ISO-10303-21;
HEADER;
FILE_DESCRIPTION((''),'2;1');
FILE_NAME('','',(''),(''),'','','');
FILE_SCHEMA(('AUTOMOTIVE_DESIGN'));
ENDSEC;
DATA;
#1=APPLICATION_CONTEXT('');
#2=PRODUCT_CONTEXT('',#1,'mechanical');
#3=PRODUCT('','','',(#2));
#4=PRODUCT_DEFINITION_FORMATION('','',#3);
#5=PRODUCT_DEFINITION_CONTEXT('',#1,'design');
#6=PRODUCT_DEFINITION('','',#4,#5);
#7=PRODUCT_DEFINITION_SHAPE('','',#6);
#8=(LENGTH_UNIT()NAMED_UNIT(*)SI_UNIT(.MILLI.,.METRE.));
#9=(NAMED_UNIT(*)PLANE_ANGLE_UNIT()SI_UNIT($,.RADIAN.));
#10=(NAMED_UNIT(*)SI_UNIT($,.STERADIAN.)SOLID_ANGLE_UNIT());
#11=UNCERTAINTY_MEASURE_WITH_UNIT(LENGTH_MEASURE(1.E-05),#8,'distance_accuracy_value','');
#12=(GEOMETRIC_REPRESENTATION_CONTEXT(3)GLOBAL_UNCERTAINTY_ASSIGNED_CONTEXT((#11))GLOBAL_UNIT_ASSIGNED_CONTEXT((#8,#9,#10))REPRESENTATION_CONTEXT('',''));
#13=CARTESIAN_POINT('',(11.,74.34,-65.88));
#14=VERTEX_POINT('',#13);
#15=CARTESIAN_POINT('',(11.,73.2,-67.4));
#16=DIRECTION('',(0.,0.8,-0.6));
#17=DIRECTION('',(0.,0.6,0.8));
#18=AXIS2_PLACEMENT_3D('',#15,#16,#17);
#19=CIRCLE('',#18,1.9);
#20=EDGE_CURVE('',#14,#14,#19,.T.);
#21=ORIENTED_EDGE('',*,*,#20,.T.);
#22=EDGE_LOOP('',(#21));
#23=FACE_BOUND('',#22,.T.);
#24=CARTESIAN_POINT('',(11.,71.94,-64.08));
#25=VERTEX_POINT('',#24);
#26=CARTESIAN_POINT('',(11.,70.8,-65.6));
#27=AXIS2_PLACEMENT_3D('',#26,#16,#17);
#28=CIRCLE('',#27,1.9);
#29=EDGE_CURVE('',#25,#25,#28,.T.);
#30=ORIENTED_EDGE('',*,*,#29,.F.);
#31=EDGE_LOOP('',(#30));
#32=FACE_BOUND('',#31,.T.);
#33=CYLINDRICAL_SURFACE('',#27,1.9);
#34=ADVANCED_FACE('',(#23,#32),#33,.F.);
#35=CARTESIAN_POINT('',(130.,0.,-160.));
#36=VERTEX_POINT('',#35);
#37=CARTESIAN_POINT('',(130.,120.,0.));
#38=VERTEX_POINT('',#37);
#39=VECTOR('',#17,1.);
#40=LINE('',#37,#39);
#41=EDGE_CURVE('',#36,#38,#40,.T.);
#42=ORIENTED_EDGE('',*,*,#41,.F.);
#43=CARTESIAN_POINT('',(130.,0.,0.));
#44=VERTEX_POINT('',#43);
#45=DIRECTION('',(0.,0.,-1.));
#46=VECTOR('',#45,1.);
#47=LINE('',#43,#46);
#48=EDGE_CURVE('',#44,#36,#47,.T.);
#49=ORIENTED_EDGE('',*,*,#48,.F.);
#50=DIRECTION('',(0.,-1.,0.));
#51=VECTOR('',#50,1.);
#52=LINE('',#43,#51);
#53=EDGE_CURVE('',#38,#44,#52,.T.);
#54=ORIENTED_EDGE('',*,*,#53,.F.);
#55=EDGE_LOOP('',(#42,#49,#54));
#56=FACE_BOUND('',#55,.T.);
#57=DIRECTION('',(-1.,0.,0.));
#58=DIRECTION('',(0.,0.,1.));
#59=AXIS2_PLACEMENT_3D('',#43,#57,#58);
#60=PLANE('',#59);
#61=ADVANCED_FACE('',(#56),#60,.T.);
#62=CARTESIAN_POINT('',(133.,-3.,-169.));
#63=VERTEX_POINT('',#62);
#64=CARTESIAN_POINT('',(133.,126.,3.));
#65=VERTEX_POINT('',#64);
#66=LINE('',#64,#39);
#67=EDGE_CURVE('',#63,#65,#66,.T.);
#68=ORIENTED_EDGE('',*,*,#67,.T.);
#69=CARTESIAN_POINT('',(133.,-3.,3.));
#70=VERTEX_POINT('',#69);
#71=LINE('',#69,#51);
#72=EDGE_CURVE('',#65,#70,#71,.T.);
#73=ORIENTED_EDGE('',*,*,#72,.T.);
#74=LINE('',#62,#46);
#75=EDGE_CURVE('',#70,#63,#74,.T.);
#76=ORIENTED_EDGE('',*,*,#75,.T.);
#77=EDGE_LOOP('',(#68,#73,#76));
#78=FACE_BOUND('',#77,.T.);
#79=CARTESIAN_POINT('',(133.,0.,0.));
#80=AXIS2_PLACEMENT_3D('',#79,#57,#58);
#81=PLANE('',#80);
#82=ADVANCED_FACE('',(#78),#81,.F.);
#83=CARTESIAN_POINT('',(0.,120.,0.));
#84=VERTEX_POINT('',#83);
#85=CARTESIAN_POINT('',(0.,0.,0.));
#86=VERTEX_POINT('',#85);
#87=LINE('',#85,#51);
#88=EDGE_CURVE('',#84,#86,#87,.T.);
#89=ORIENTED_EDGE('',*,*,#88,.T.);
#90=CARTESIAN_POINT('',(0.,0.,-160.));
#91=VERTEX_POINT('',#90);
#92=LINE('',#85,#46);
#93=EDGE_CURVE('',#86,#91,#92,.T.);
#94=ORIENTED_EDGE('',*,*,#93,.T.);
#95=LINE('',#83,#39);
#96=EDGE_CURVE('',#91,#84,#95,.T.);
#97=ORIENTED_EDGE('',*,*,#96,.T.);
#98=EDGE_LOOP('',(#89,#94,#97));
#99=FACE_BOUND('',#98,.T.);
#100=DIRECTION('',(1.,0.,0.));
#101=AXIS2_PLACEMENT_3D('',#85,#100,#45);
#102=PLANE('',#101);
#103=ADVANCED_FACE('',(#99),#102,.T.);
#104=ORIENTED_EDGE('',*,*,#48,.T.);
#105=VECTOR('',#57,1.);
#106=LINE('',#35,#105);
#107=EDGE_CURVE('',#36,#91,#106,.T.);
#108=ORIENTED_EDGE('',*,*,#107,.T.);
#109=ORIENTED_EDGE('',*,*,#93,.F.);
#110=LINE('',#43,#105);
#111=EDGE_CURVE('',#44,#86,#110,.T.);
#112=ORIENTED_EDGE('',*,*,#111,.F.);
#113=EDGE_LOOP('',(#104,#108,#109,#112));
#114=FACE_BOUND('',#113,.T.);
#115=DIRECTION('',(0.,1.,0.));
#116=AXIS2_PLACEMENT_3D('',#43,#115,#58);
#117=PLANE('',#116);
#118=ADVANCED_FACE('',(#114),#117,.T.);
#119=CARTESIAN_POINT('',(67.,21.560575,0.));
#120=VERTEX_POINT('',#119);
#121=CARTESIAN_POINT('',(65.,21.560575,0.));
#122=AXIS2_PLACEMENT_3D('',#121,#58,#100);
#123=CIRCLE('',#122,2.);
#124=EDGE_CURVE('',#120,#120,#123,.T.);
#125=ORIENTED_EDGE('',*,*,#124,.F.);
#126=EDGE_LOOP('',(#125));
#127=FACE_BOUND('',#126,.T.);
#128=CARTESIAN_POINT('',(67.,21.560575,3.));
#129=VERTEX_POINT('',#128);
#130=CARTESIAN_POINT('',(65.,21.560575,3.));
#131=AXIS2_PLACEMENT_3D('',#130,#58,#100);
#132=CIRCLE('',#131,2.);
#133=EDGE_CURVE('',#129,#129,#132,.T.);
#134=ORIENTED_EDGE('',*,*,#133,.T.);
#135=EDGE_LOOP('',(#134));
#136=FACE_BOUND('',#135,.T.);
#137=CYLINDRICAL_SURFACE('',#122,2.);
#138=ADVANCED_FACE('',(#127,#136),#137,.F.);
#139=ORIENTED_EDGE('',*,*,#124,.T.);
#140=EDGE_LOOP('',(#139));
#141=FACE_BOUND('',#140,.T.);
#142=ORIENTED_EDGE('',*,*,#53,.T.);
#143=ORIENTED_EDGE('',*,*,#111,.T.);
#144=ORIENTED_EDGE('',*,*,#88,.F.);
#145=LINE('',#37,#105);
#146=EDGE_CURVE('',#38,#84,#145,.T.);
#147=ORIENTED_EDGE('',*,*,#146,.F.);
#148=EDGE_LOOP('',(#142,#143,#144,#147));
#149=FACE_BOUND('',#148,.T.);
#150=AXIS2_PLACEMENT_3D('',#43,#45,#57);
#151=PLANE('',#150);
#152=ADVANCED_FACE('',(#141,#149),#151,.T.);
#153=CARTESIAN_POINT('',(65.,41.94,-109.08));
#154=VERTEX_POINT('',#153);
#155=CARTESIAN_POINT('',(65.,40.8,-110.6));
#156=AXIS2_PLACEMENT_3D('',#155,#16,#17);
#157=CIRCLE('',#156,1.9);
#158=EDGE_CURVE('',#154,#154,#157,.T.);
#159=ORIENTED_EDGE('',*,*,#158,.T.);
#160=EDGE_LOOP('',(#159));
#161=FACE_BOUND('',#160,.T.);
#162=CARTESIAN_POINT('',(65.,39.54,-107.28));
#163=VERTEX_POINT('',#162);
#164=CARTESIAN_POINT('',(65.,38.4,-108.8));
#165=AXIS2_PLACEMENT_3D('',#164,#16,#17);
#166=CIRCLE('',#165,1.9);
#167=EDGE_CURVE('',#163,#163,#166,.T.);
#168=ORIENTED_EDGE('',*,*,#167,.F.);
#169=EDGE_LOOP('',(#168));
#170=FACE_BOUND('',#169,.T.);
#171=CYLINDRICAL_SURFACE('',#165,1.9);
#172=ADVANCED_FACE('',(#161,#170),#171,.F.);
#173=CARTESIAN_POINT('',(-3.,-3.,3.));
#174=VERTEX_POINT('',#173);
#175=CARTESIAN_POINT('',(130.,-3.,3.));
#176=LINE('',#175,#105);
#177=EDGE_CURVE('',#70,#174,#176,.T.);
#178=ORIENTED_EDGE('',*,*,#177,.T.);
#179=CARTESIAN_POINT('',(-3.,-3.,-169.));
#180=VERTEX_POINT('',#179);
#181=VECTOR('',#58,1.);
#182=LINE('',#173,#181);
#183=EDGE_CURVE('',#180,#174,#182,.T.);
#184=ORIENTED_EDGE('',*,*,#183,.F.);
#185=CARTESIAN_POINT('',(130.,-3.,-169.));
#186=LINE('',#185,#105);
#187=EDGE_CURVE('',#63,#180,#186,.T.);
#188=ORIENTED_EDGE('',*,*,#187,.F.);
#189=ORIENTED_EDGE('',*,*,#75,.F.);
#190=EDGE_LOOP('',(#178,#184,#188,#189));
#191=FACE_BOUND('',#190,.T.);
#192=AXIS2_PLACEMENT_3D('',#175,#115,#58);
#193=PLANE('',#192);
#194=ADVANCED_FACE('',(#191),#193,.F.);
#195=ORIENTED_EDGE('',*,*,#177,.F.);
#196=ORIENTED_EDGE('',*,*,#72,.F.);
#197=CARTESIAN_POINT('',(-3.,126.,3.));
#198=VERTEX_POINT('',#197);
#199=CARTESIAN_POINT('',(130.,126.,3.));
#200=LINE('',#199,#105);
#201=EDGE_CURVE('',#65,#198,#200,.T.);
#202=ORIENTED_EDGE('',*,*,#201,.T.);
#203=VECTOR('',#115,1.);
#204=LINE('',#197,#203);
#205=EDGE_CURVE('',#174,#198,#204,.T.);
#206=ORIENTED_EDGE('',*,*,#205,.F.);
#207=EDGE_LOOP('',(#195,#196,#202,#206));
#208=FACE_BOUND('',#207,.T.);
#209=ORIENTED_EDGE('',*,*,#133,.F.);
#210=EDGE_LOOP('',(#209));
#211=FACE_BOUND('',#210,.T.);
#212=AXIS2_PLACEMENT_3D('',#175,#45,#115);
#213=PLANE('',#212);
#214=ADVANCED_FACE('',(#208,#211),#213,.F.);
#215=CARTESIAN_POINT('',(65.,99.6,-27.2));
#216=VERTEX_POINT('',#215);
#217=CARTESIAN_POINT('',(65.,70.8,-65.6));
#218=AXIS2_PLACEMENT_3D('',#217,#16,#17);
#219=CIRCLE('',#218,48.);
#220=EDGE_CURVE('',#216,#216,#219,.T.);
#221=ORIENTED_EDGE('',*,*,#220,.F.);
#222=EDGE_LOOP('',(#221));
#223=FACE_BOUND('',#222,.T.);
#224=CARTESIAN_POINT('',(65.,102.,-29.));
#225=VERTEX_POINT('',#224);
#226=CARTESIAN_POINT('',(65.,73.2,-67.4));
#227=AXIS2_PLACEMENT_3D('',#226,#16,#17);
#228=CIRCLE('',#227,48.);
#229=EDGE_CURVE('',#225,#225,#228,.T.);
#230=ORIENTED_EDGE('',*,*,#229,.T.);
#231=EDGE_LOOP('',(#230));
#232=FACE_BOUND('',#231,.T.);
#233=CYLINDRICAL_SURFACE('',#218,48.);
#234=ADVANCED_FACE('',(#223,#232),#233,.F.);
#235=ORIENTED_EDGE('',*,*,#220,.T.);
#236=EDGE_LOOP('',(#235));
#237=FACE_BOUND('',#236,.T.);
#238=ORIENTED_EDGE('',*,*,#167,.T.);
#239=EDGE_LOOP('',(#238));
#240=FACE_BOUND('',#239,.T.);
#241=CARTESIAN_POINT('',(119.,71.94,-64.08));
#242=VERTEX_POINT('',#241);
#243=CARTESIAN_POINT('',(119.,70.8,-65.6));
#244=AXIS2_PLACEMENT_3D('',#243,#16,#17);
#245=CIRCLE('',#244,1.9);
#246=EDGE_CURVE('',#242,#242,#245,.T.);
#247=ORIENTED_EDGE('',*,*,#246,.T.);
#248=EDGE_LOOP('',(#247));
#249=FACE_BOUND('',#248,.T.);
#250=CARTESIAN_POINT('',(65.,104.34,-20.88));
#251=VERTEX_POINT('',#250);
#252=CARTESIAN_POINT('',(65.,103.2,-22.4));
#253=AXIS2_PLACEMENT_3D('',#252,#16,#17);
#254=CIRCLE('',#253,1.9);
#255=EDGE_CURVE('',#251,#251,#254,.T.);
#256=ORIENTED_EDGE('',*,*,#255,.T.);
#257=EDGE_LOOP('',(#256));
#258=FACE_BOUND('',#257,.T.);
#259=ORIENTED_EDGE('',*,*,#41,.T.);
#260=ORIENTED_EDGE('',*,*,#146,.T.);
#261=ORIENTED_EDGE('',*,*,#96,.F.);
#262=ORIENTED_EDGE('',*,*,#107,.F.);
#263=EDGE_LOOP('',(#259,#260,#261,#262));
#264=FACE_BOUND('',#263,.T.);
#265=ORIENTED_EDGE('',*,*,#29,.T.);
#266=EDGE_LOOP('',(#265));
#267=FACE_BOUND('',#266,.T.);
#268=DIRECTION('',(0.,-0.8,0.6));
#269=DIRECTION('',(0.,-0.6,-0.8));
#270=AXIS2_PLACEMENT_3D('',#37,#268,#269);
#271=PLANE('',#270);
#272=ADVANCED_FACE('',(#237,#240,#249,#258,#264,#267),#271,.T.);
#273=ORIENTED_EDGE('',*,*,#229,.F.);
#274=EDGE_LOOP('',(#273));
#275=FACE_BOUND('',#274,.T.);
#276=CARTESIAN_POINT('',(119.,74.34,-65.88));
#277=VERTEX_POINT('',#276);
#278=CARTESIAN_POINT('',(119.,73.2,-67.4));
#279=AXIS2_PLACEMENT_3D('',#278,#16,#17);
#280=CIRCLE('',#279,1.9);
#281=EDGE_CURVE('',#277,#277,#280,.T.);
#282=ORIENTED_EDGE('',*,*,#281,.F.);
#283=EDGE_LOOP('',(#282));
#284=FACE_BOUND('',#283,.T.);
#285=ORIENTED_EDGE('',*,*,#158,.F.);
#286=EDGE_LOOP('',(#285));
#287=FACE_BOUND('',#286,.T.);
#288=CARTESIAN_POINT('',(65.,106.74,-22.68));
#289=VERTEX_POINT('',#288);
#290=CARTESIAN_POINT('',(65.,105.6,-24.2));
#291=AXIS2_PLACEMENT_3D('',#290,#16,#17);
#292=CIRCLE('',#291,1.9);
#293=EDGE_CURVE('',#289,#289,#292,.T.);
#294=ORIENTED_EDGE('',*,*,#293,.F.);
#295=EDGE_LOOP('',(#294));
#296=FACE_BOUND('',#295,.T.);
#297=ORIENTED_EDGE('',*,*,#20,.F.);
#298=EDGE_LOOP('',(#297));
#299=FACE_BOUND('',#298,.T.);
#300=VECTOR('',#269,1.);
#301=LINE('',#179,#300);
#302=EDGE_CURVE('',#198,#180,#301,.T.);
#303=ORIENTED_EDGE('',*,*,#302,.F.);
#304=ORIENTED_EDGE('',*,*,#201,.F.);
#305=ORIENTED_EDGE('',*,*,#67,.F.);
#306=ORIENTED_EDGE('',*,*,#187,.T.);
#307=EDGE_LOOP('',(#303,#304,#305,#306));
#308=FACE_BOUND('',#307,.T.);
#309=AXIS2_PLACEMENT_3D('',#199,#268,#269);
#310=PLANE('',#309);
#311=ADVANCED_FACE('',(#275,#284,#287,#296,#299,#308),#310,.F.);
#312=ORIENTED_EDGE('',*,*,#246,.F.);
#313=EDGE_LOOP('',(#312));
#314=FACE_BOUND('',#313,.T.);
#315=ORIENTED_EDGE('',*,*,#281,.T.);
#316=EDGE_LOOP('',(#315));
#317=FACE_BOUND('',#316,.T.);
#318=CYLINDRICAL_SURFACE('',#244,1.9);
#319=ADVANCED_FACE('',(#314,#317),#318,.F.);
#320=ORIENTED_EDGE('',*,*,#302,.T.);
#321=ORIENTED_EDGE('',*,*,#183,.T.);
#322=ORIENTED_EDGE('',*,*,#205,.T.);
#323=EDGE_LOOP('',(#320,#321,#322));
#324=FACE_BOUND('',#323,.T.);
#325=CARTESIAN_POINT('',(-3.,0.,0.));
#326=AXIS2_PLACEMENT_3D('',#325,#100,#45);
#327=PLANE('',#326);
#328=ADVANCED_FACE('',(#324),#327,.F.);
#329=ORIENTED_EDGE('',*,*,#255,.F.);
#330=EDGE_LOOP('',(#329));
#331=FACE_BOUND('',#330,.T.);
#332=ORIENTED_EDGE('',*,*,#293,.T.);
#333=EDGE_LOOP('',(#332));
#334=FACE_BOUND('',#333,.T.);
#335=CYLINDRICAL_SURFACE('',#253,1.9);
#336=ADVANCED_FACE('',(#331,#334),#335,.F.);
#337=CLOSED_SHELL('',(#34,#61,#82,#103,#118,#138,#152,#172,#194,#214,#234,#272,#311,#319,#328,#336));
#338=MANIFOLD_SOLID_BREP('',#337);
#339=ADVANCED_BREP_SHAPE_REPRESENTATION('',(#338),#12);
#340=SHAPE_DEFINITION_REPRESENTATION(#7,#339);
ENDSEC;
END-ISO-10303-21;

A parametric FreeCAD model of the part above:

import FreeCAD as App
import Part
import Sketcher


def add_polygon(sketch, points):
    """Adds a closed chain of lines whose ends are joined by coincident constraints."""
    first, n = sketch.GeometryCount, len(points)
    for a, b in zip(points, points[1:] + points[:1]):
        sketch.addGeometry(Part.LineSegment(App.Vector(*a, 0), App.Vector(*b, 0)), False)
    for i in range(n):
        sketch.addConstraint(Sketcher.Constraint("Coincident", first + i, 2, first + (i + 1) % n, 1))

doc = App.newDocument("Part")
body = doc.addObject("PartDesign::Body", "Body")

sketch1 = body.newObject("Sketcher::SketchObject", "Sketch")
sketch1.AttachmentSupport = (doc.getObject("YZ_Plane"), [""])
sketch1.MapMode = "FlatFace"
add_polygon(sketch1, [(-3, -169), (126, 3), (-3, 3)])
add_polygon(sketch1, [(0, 0), (120, 0), (0, -160)])
sketch1.addConstraint([
    Sketcher.Constraint("Horizontal", 1),
    Sketcher.Constraint("Vertical", 2),
    Sketcher.Constraint("Horizontal", 3),
    Sketcher.Constraint("Vertical", 5),
    Sketcher.Constraint("Coincident", 5, 2, -1, 1),
    Sketcher.Constraint("Parallel", 0, 4),
    Sketcher.Constraint("DistanceX", 1, 2, 1, 1, 129.0),
    Sketcher.Constraint("DistanceX", 3, 1, 3, 2, 120.0),
    Sketcher.Constraint("DistanceY", 2, 2, 2, 1, 172.0),
    Sketcher.Constraint("DistanceX", -1, 1, 0, 2, 126.0),
    Sketcher.Constraint("DistanceY", -1, 1, 0, 2, 3.0),
])
pad1 = body.newObject("PartDesign::Pad", "Pad")
pad1.Profile = sketch1
pad1.Length = 130

sketch2 = body.newObject("Sketcher::SketchObject", "Sketch001")
sketch2.Placement = App.Placement(App.Vector(0, 79.2, -59.4), App.Rotation(App.Vector(1, 0, 0), App.Vector(0, -0.6, -0.8), App.Vector(0, 0.8, -0.6), "ZXY"))
sketch2.addGeometry(Part.Circle(App.Vector(65, 10, 0), App.Vector(0, 0, 1), 48), False)
sketch2.addConstraint([
    Sketcher.Constraint("Diameter", 0, 96.0),
    Sketcher.Constraint("DistanceX", -1, 1, 0, 3, 65.0),
    Sketcher.Constraint("DistanceY", -1, 1, 0, 3, 10.0),
])
pocket1 = body.newObject("PartDesign::Pocket", "Pocket")
pocket1.Profile = sketch2
pocket1.Length = 3

sketch3 = body.newObject("Sketcher::SketchObject", "Sketch002")
sketch3.Placement = App.Placement(App.Vector(0, 79.2, -59.4), App.Rotation(App.Vector(1, 0, 0), App.Vector(0, -0.6, -0.8), App.Vector(0, 0.8, -0.6), "ZXY"))
sketch3.addGeometry([
    Part.Circle(App.Vector(11, 10, 0), App.Vector(0, 0, 1), 1.9),
    Part.Circle(App.Vector(65, -44, 0), App.Vector(0, 0, 1), 1.9),
    Part.Circle(App.Vector(119, 10, 0), App.Vector(0, 0, 1), 1.9),
    Part.Circle(App.Vector(65, 64, 0), App.Vector(0, 0, 1), 1.9),
], False)
sketch3.addConstraint([
    Sketcher.Constraint("Equal", 0, 1),
    Sketcher.Constraint("Equal", 1, 2),
    Sketcher.Constraint("Equal", 2, 3),
    Sketcher.Constraint("Horizontal", 0, 3, 2, 3),
    Sketcher.Constraint("Vertical", 1, 3, 3, 3),
    Sketcher.Constraint("Diameter", 0, 3.8),
    Sketcher.Constraint("DistanceX", -1, 1, 0, 3, 11.0),
    Sketcher.Constraint("DistanceY", -1, 1, 0, 3, 10.0),
    Sketcher.Constraint("DistanceX", -1, 1, 1, 3, 65.0),
    Sketcher.Constraint("DistanceY", 1, 3, -1, 1, 44.0),
    Sketcher.Constraint("DistanceX", -1, 1, 2, 3, 119.0),
    Sketcher.Constraint("DistanceY", -1, 1, 3, 3, 64.0),
])
pocket2 = body.newObject("PartDesign::Pocket", "Pocket001")
pocket2.Profile = sketch3
pocket2.Length = 3

sketch4 = body.newObject("Sketcher::SketchObject", "Sketch003")
sketch4.AttachmentSupport = (doc.getObject("YZ_Plane"), [""])
sketch4.MapMode = "FlatFace"
sketch4.AttachmentOffset = App.Placement(App.Vector(0, 0, 130), App.Rotation())
add_polygon(sketch4, [(126, 3), (-3, 3), (-3, -169)])
sketch4.addConstraint([
    Sketcher.Constraint("Horizontal", 0),
    Sketcher.Constraint("Vertical", 1),
    Sketcher.Constraint("DistanceX", 0, 2, 0, 1, 129.0),
    Sketcher.Constraint("DistanceY", 1, 2, 1, 1, 172.0),
    Sketcher.Constraint("DistanceX", 0, 2, -1, 1, 3.0),
    Sketcher.Constraint("DistanceY", -1, 1, 0, 2, 3.0),
])
pad2 = body.newObject("PartDesign::Pad", "Pad001")
pad2.Profile = sketch4
pad2.Length = 3

sketch5 = body.newObject("Sketcher::SketchObject", "Sketch004")
sketch5.AttachmentSupport = (doc.getObject("YZ_Plane"), [""])
sketch5.MapMode = "FlatFace"
add_polygon(sketch5, [(-3, 3), (126, 3), (-3, -169)])
sketch5.addConstraint([
    Sketcher.Constraint("Horizontal", 0),
    Sketcher.Constraint("Vertical", 2),
    Sketcher.Constraint("DistanceX", 0, 1, 0, 2, 129.0),
    Sketcher.Constraint("DistanceY", 2, 1, 2, 2, 172.0),
    Sketcher.Constraint("DistanceX", -1, 1, 0, 2, 126.0),
    Sketcher.Constraint("DistanceY", -1, 1, 0, 2, 3.0),
])
pad3 = body.newObject("PartDesign::Pad", "Pad002")
pad3.Profile = sketch5
pad3.Length = 3
pad3.Reversed = True

sketch6 = body.newObject("Sketcher::SketchObject", "Sketch005")
sketch6.AttachmentSupport = (doc.getObject("XY_Plane"), [""])
sketch6.MapMode = "FlatFace"
sketch6.AttachmentOffset = App.Placement(App.Vector(0, 0, 3), App.Rotation())
sketch6.addGeometry(Part.Circle(App.Vector(65, 21.6, 0), App.Vector(0, 0, 1), 2), False)
sketch6.addConstraint([
    Sketcher.Constraint("Diameter", 0, 4.0),
    Sketcher.Constraint("DistanceX", -1, 1, 0, 3, 65.0),
    Sketcher.Constraint("DistanceY", -1, 1, 0, 3, 21.560575),
])
pocket3 = body.newObject("PartDesign::Pocket", "Pocket002")
pocket3.Profile = sketch6
pocket3.Length = 3

doc.recompute()
